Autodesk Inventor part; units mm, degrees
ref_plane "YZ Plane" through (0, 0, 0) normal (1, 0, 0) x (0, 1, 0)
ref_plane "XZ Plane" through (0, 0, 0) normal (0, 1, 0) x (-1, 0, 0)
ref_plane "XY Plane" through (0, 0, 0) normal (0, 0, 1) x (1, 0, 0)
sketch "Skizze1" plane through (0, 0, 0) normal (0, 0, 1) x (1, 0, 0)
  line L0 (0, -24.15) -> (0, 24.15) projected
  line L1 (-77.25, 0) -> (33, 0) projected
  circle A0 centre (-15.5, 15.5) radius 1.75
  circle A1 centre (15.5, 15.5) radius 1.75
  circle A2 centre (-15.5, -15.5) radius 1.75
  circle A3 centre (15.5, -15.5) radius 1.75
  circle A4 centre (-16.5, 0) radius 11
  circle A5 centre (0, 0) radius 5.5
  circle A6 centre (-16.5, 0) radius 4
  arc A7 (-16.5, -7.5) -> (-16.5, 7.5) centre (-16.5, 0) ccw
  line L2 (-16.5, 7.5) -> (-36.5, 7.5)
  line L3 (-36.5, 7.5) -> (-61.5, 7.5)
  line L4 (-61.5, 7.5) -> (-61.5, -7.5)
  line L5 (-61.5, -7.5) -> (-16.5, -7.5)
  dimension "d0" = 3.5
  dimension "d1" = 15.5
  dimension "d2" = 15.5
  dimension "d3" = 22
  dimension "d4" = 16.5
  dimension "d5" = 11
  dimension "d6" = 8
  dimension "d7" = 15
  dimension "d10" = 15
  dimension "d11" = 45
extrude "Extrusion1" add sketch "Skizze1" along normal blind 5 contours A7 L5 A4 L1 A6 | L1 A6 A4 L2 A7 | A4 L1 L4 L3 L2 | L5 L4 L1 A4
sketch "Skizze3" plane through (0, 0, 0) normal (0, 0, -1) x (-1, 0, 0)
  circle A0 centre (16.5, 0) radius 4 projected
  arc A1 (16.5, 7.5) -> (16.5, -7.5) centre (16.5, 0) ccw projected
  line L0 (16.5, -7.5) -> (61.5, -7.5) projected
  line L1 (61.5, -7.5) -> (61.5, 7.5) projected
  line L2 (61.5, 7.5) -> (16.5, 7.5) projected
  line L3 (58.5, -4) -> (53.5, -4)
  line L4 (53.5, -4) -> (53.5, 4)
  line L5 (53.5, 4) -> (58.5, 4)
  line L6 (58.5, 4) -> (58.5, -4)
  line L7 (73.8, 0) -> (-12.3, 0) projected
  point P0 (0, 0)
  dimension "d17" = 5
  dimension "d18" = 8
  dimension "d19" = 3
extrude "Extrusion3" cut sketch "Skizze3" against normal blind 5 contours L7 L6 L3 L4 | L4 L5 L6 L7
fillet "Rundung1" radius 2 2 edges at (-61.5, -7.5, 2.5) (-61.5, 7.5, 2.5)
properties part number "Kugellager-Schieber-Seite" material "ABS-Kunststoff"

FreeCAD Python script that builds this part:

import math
import FreeCAD as App
import Part
import Sketcher

V = App.Vector
Q = App.Units.Quantity


def edges_at(feature, points):
    """Names of the edges that pass closest to the given points."""
    edges = feature.Shape.Edges
    near = lambda p: min(range(len(edges)), key=lambda i: edges[i].distToShape(Part.Vertex(*p))[0])
    return sorted({f"Edge{near(p) + 1}" for p in points})

doc = App.newDocument("Part")
params = doc.addObject("Spreadsheet::Sheet", "Params")
for row, (alias, value) in enumerate([
    ("sketch1_diameter", "8 mm"),
    ("sketch1_radius", "7.5 mm"),
    ("sketch1_width", "45 mm"),
    ("pad1_length", "5 mm"),
    ("sketch2_width", "5 mm"),
    ("sketch2_height", "8 mm"),
    ("pocket1_length", "5 mm"),
    ("fillet_radius", "2 mm"),
], start=1):
    params.set(f"A{row}", alias)
    params.set(f"B{row}", "=" + value)
    params.setAlias(f"B{row}", alias)

body = doc.addObject("PartDesign::Body", "Body")

sketch1 = body.newObject("Sketcher::SketchObject", "Sketch")
sketch1.AttachmentSupport = (doc.getObject("XY_Plane"), [""])
sketch1.MapMode = "FlatFace"
sketch1.addGeometry([
    Part.ArcOfCircle(Part.Circle(V(-16.5, 0, 0), V(0, 0, 1), 7.5), math.radians(-90), math.radians(90)),
    Part.LineSegment(V(-16.5, 7.5, 0), V(-61.5, 7.5, 0)),
    Part.LineSegment(V(-61.5, 7.5, 0), V(-61.5, -7.5, 0)),
    Part.LineSegment(V(-61.5, -7.5, 0), V(-16.5, -7.5, 0)),
    Part.Circle(V(-16.5, 0, 0), V(0, 0, 1), 4),
], False)
sketch1.addConstraint([
    Sketcher.Constraint("Tangent", 0, 2, 1, 1),
    Sketcher.Constraint("Coincident", 1, 2, 2, 1),
    Sketcher.Constraint("Coincident", 2, 2, 3, 1),
    Sketcher.Constraint("Tangent", 3, 2, 0, 1),
    Sketcher.Constraint("Horizontal", 1),
    Sketcher.Constraint("Vertical", 2),
    Sketcher.Constraint("Horizontal", 3),
    Sketcher.Constraint("Coincident", 4, 3, 0, 3),
    Sketcher.Constraint("PointOnObject", 0, 3, -1),
    Sketcher.Constraint("Diameter", 4, Q("8 mm")),
    Sketcher.Constraint("Radius", 0, Q("7.5 mm")),
    Sketcher.Constraint("DistanceX", 1, 2, 1, 1, Q("45 mm")),
    Sketcher.Constraint("DistanceX", 0, 3, -1, 1, Q("16.5 mm")),
])
sketch1.setExpression("Constraints[9]", "Params.sketch1_diameter")
sketch1.setExpression("Constraints[10]", "Params.sketch1_radius")
sketch1.setExpression("Constraints[11]", "Params.sketch1_width")
pad1 = body.newObject("PartDesign::Pad", "Pad")
pad1.Profile = sketch1
pad1.setExpression("Length", "Params.pad1_length")

sketch2 = body.newObject("Sketcher::SketchObject", "Sketch001")
sketch2.AttachmentSupport = (doc.getObject("XY_Plane"), [""])
sketch2.MapMode = "FlatFace"
sketch2.addGeometry([
    Part.LineSegment(V(-58.5, -4, 0), V(-58.5, 4, 0)),
    Part.LineSegment(V(-58.5, 4, 0), V(-53.5, 4, 0)),
    Part.LineSegment(V(-53.5, 4, 0), V(-53.5, -4, 0)),
    Part.LineSegment(V(-53.5, -4, 0), V(-58.5, -4, 0)),
], False)
sketch2.addConstraint([
    Sketcher.Constraint("Coincident", 0, 2, 1, 1),
    Sketcher.Constraint("Coincident", 1, 2, 2, 1),
    Sketcher.Constraint("Coincident", 2, 2, 3, 1),
    Sketcher.Constraint("Coincident", 3, 2, 0, 1),
    Sketcher.Constraint("Vertical", 0),
    Sketcher.Constraint("Horizontal", 1),
    Sketcher.Constraint("Vertical", 2),
    Sketcher.Constraint("Horizontal", 3),
    Sketcher.Constraint("DistanceX", 1, 1, 1, 2, Q("5 mm")),
    Sketcher.Constraint("DistanceY", 0, 1, 0, 2, Q("8 mm")),
    Sketcher.Constraint("DistanceY", -1, 1, 0, 2, Q("4 mm")),
    Sketcher.Constraint("DistanceX", 0, 2, -1, 1, Q("58.5 mm")),
])
sketch2.setExpression("Constraints[8]", "Params.sketch2_width")
sketch2.setExpression("Constraints[9]", "Params.sketch2_height")
pocket1 = body.newObject("PartDesign::Pocket", "Pocket")
pocket1.Profile = sketch2
pocket1.setExpression("Length", "Params.pocket1_length")
pocket1.Reversed = True
doc.recompute()

fillet = body.newObject("PartDesign::Fillet", "Fillet")
fillet.Base = (pocket1, edges_at(pocket1, [(-61.5, -7.5, 2.5), (-61.5, 7.5, 2.5)]))
fillet.setExpression("Radius", "Params.fillet_radius")

doc.recompute()
